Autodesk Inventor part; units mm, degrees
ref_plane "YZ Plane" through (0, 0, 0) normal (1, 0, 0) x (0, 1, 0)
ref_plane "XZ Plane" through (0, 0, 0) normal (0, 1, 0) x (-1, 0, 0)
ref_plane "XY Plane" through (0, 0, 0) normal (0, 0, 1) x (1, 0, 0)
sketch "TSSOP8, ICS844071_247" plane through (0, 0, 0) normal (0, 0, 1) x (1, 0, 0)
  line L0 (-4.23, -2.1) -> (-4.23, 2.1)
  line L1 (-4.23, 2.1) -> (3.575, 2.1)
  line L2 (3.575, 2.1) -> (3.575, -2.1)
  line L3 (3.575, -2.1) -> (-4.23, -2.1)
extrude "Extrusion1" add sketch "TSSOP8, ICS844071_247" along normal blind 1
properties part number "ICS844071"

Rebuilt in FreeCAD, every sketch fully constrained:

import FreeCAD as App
import Part
import Sketcher


def add_polygon(sketch, points):
    """Adds a closed chain of lines whose ends are joined by coincident constraints."""
    first, n = sketch.GeometryCount, len(points)
    for a, b in zip(points, points[1:] + points[:1]):
        sketch.addGeometry(Part.LineSegment(App.Vector(*a, 0), App.Vector(*b, 0)), False)
    for i in range(n):
        sketch.addConstraint(Sketcher.Constraint("Coincident", first + i, 2, first + (i + 1) % n, 1))

doc = App.newDocument("Part")
body = doc.addObject("PartDesign::Body", "Body")

sketch1 = body.newObject("Sketcher::SketchObject", "Sketch")
sketch1.AttachmentSupport = (doc.getObject("XY_Plane"), [""])
sketch1.MapMode = "FlatFace"
add_polygon(sketch1, [(-4.2, 2.1), (-4.2, -2.1), (3.6, -2.1), (3.6, 2.1)])
sketch1.addConstraint([
    Sketcher.Constraint("Vertical", 0),
    Sketcher.Constraint("Horizontal", 1),
    Sketcher.Constraint("Vertical", 2),
    Sketcher.Constraint("Horizontal", 3),
    Sketcher.Constraint("DistanceY", 0, 2, 0, 1, 4.2),
    Sketcher.Constraint("DistanceY", 0, 2, -1, 1, 2.1),
    Sketcher.Constraint("DistanceX", 1, 1, 1, 2, 7.805),
    Sketcher.Constraint("DistanceX", 0, 2, -1, 1, 4.23),
])
pad1 = body.newObject("PartDesign::Pad", "Pad")
pad1.Profile = sketch1
pad1.Length = 1

doc.recompute()
